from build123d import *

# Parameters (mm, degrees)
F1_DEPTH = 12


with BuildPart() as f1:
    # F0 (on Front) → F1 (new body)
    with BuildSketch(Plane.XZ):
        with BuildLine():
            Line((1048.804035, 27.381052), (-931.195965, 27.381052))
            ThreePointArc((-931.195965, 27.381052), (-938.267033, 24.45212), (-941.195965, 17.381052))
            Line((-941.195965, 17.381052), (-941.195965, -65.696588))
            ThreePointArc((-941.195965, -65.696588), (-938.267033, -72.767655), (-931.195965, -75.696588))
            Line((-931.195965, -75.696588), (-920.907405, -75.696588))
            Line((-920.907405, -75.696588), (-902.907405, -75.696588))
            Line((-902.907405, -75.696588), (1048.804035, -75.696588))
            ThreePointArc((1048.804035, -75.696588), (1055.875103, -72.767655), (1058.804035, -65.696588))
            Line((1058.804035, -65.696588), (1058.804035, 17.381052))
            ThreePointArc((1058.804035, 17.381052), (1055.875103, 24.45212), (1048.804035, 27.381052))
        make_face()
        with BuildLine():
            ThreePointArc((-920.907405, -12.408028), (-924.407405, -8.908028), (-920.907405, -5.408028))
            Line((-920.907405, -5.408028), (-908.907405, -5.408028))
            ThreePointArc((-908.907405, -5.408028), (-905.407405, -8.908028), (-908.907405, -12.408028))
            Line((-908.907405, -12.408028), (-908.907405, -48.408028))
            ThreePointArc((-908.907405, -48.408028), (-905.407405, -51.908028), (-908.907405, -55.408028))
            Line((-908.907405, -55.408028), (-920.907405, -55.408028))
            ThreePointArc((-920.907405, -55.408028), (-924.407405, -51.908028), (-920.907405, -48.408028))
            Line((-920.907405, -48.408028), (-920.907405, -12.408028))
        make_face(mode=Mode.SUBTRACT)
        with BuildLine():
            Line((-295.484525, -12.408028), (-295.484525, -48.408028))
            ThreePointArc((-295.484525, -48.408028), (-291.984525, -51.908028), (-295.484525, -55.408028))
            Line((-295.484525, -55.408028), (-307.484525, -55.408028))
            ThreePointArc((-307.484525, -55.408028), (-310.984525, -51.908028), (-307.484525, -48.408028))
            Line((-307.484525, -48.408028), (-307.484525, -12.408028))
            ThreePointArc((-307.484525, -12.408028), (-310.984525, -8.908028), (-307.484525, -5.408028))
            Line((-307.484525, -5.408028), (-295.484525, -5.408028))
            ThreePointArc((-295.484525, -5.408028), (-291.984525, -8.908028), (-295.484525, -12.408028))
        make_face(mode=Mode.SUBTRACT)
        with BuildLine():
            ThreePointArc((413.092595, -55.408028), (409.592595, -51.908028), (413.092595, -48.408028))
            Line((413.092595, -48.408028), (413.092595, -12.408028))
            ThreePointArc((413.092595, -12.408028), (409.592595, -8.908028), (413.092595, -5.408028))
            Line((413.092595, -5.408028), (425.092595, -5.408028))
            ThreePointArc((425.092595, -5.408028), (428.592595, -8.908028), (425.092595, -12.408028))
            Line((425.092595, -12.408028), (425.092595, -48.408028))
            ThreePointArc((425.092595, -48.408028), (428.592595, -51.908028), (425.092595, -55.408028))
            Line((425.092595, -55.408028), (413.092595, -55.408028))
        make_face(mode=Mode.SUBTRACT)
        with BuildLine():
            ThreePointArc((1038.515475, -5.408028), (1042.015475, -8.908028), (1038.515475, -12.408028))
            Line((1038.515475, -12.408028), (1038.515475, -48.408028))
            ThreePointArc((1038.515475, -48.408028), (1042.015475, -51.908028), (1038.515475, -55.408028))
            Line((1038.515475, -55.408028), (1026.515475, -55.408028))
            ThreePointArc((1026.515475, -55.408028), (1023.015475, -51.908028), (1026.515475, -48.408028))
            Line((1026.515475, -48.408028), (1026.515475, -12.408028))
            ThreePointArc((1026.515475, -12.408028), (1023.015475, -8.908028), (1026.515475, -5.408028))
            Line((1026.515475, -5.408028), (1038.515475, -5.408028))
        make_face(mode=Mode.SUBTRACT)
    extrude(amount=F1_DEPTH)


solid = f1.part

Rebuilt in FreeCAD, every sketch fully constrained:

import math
import FreeCAD as App
import Part
import Sketcher

V = App.Vector
Q = App.Units.Quantity

doc = App.newDocument("Part")
body = doc.addObject("PartDesign::Body", "Body")

# Sketch on XZ plane
sketch1 = doc.addObject("Sketcher::SketchObject", "Sketch")
body.addObject(sketch1)
sketch1.AttachmentSupport = (doc.XZ_Plane, [""])
sketch1.MapMode = "FlatFace"
sketch1.addGeometry(Part.LineSegment(V(1048.8, 27.4, 0), V(-931.2, 27.4, 0)), False)
sketch1.addGeometry(Part.ArcOfCircle(Part.Circle(V(-931.2, 17.4, 0), V(0, 0, 1), 10), math.radians(90), math.radians(180)), False)
sketch1.addGeometry(Part.LineSegment(V(-941.2, 17.4, 0), V(-941.2, -65.7, 0)), False)
sketch1.addGeometry(Part.ArcOfCircle(Part.Circle(V(-931.2, -65.7, 0), V(0, 0, 1), 10), math.radians(-180), math.radians(-90)), False)
sketch1.addGeometry(Part.LineSegment(V(-931.2, -75.7, 0), V(1048.8, -75.7, 0)), False)
sketch1.addGeometry(Part.ArcOfCircle(Part.Circle(V(1048.8, -65.7, 0), V(0, 0, 1), 10), math.radians(-90), math.radians(0)), False)
sketch1.addGeometry(Part.LineSegment(V(1058.8, -65.7, 0), V(1058.8, 17.4, 0)), False)
sketch1.addGeometry(Part.ArcOfCircle(Part.Circle(V(1048.8, 17.4, 0), V(0, 0, 1), 10), math.radians(0), math.radians(90)), False)
sketch1.addGeometry(Part.LineSegment(V(-920.9, -48.4, 0), V(-920.9, -12.4, 0)), False)
sketch1.addGeometry(Part.ArcOfCircle(Part.Circle(V(-920.9, -8.9, 0), V(0, 0, 1), 3.5), math.radians(90), math.radians(270)), False)
sketch1.addGeometry(Part.LineSegment(V(-920.9, -5.4, 0), V(-908.9, -5.4, 0)), False)
sketch1.addGeometry(Part.ArcOfCircle(Part.Circle(V(-908.9, -8.9, 0), V(0, 0, 1), 3.5), math.radians(-90), math.radians(90)), False)
sketch1.addGeometry(Part.LineSegment(V(-908.9, -12.4, 0), V(-908.9, -48.4, 0)), False)
sketch1.addGeometry(Part.ArcOfCircle(Part.Circle(V(-908.9, -51.9, 0), V(0, 0, 1), 3.5), math.radians(-90), math.radians(90)), False)
sketch1.addGeometry(Part.LineSegment(V(-908.9, -55.4, 0), V(-920.9, -55.4, 0)), False)
sketch1.addGeometry(Part.ArcOfCircle(Part.Circle(V(-920.9, -51.9, 0), V(0, 0, 1), 3.5), math.radians(90), math.radians(270)), False)
sketch1.addGeometry(Part.ArcOfCircle(Part.Circle(V(-295.5, -8.9, 0), V(0, 0, 1), 3.5), math.radians(-90), math.radians(90)), False)
sketch1.addGeometry(Part.LineSegment(V(-295.5, -12.4, 0), V(-295.5, -48.4, 0)), False)
sketch1.addGeometry(Part.ArcOfCircle(Part.Circle(V(-295.5, -51.9, 0), V(0, 0, 1), 3.5), math.radians(-90), math.radians(90)), False)
sketch1.addGeometry(Part.LineSegment(V(-295.5, -55.4, 0), V(-307.5, -55.4, 0)), False)
sketch1.addGeometry(Part.ArcOfCircle(Part.Circle(V(-307.5, -51.9, 0), V(0, 0, 1), 3.5), math.radians(90), math.radians(270)), False)
sketch1.addGeometry(Part.LineSegment(V(-307.5, -48.4, 0), V(-307.5, -12.4, 0)), False)
sketch1.addGeometry(Part.ArcOfCircle(Part.Circle(V(-307.5, -8.9, 0), V(0, 0, 1), 3.5), math.radians(90), math.radians(270)), False)
sketch1.addGeometry(Part.LineSegment(V(-307.5, -5.4, 0), V(-295.5, -5.4, 0)), False)
sketch1.addGeometry(Part.LineSegment(V(425.1, -55.4, 0), V(413.1, -55.4, 0)), False)
sketch1.addGeometry(Part.ArcOfCircle(Part.Circle(V(413.1, -51.9, 0), V(0, 0, 1), 3.5), math.radians(90), math.radians(270)), False)
sketch1.addGeometry(Part.LineSegment(V(413.1, -48.4, 0), V(413.1, -12.4, 0)), False)
sketch1.addGeometry(Part.ArcOfCircle(Part.Circle(V(413.1, -8.9, 0), V(0, 0, 1), 3.5), math.radians(90), math.radians(270)), False)
sketch1.addGeometry(Part.LineSegment(V(413.1, -5.4, 0), V(425.1, -5.4, 0)), False)
sketch1.addGeometry(Part.ArcOfCircle(Part.Circle(V(425.1, -8.9, 0), V(0, 0, 1), 3.5), math.radians(-90), math.radians(90)), False)
sketch1.addGeometry(Part.LineSegment(V(425.1, -12.4, 0), V(425.1, -48.4, 0)), False)
sketch1.addGeometry(Part.ArcOfCircle(Part.Circle(V(425.1, -51.9, 0), V(0, 0, 1), 3.5), math.radians(-90), math.radians(90)), False)
sketch1.addGeometry(Part.LineSegment(V(1026.5, -5.4, 0), V(1038.5, -5.4, 0)), False)
sketch1.addGeometry(Part.ArcOfCircle(Part.Circle(V(1038.5, -8.9, 0), V(0, 0, 1), 3.5), math.radians(-90), math.radians(90)), False)
sketch1.addGeometry(Part.LineSegment(V(1038.5, -12.4, 0), V(1038.5, -48.4, 0)), False)
sketch1.addGeometry(Part.ArcOfCircle(Part.Circle(V(1038.5, -51.9, 0), V(0, 0, 1), 3.5), math.radians(-90), math.radians(90)), False)
sketch1.addGeometry(Part.LineSegment(V(1038.5, -55.4, 0), V(1026.5, -55.4, 0)), False)
sketch1.addGeometry(Part.ArcOfCircle(Part.Circle(V(1026.5, -51.9, 0), V(0, 0, 1), 3.5), math.radians(90), math.radians(270)), False)
sketch1.addGeometry(Part.LineSegment(V(1026.5, -48.4, 0), V(1026.5, -12.4, 0)), False)
sketch1.addGeometry(Part.ArcOfCircle(Part.Circle(V(1026.5, -8.9, 0), V(0, 0, 1), 3.5), math.radians(90), math.radians(270)), False)
sketch1.addConstraint(Sketcher.Constraint("Tangent", 0, 2, 1, 1))
sketch1.addConstraint(Sketcher.Constraint("Tangent", 1, 2, 2, 1))
sketch1.addConstraint(Sketcher.Constraint("Tangent", 2, 2, 3, 1))
sketch1.addConstraint(Sketcher.Constraint("Tangent", 3, 2, 4, 1))
sketch1.addConstraint(Sketcher.Constraint("Tangent", 4, 2, 5, 1))
sketch1.addConstraint(Sketcher.Constraint("Tangent", 5, 2, 6, 1))
sketch1.addConstraint(Sketcher.Constraint("Tangent", 6, 2, 7, 1))
sketch1.addConstraint(Sketcher.Constraint("Tangent", 7, 2, 0, 1))
sketch1.addConstraint(Sketcher.Constraint("Coincident", 8, 2, 9, 2))
sketch1.addConstraint(Sketcher.Constraint("Tangent", 9, 1, 10, 1))
sketch1.addConstraint(Sketcher.Constraint("Tangent", 10, 2, 11, 2))
sketch1.addConstraint(Sketcher.Constraint("Coincident", 11, 1, 12, 1))
sketch1.addConstraint(Sketcher.Constraint("Coincident", 12, 2, 13, 2))
sketch1.addConstraint(Sketcher.Constraint("Tangent", 13, 1, 14, 1))
sketch1.addConstraint(Sketcher.Constraint("Tangent", 14, 2, 15, 2))
sketch1.addConstraint(Sketcher.Constraint("Coincident", 15, 1, 8, 1))
sketch1.addConstraint(Sketcher.Constraint("Coincident", 16, 1, 17, 1))
sketch1.addConstraint(Sketcher.Constraint("Coincident", 17, 2, 18, 2))
sketch1.addConstraint(Sketcher.Constraint("Tangent", 18, 1, 19, 1))
sketch1.addConstraint(Sketcher.Constraint("Tangent", 19, 2, 20, 2))
sketch1.addConstraint(Sketcher.Constraint("Coincident", 20, 1, 21, 1))
sketch1.addConstraint(Sketcher.Constraint("Coincident", 21, 2, 22, 2))
sketch1.addConstraint(Sketcher.Constraint("Tangent", 22, 1, 23, 1))
sketch1.addConstraint(Sketcher.Constraint("Tangent", 23, 2, 16, 2))
sketch1.addConstraint(Sketcher.Constraint("Tangent", 24, 2, 25, 2))
sketch1.addConstraint(Sketcher.Constraint("Coincident", 25, 1, 26, 1))
sketch1.addConstraint(Sketcher.Constraint("Coincident", 26, 2, 27, 2))
sketch1.addConstraint(Sketcher.Constraint("Tangent", 27, 1, 28, 1))
sketch1.addConstraint(Sketcher.Constraint("Tangent", 28, 2, 29, 2))
sketch1.addConstraint(Sketcher.Constraint("Coincident", 29, 1, 30, 1))
sketch1.addConstraint(Sketcher.Constraint("Coincident", 30, 2, 31, 2))
sketch1.addConstraint(Sketcher.Constraint("Tangent", 31, 1, 24, 1))
sketch1.addConstraint(Sketcher.Constraint("Tangent", 32, 2, 33, 2))
sketch1.addConstraint(Sketcher.Constraint("Coincident", 33, 1, 34, 1))
sketch1.addConstraint(Sketcher.Constraint("Coincident", 34, 2, 35, 2))
sketch1.addConstraint(Sketcher.Constraint("Tangent", 35, 1, 36, 1))
sketch1.addConstraint(Sketcher.Constraint("Tangent", 36, 2, 37, 2))
sketch1.addConstraint(Sketcher.Constraint("Coincident", 37, 1, 38, 1))
sketch1.addConstraint(Sketcher.Constraint("Coincident", 38, 2, 39, 2))
sketch1.addConstraint(Sketcher.Constraint("Tangent", 39, 1, 32, 1))
sketch1.addConstraint(Sketcher.Constraint("Horizontal", 0))
sketch1.addConstraint(Sketcher.Constraint("Vertical", 2))
sketch1.addConstraint(Sketcher.Constraint("Horizontal", 4))
sketch1.addConstraint(Sketcher.Constraint("Vertical", 6))
sketch1.addConstraint(Sketcher.Constraint("Vertical", 8))
sketch1.addConstraint(Sketcher.Constraint("Horizontal", 10))
sketch1.addConstraint(Sketcher.Constraint("Vertical", 12))
sketch1.addConstraint(Sketcher.Constraint("Horizontal", 14))
sketch1.addConstraint(Sketcher.Constraint("Vertical", 17))
sketch1.addConstraint(Sketcher.Constraint("Horizontal", 19))
sketch1.addConstraint(Sketcher.Constraint("Vertical", 21))
sketch1.addConstraint(Sketcher.Constraint("Horizontal", 23))
sketch1.addConstraint(Sketcher.Constraint("Horizontal", 24))
sketch1.addConstraint(Sketcher.Constraint("Vertical", 26))
sketch1.addConstraint(Sketcher.Constraint("Horizontal", 28))
sketch1.addConstraint(Sketcher.Constraint("Vertical", 30))
sketch1.addConstraint(Sketcher.Constraint("Horizontal", 32))
sketch1.addConstraint(Sketcher.Constraint("Vertical", 34))
sketch1.addConstraint(Sketcher.Constraint("Horizontal", 36))
sketch1.addConstraint(Sketcher.Constraint("Vertical", 38))
sketch1.addConstraint(Sketcher.Constraint("Equal", 1, 3))
sketch1.addConstraint(Sketcher.Constraint("Equal", 3, 5))
sketch1.addConstraint(Sketcher.Constraint("Equal", 5, 7))
sketch1.addConstraint(Sketcher.Constraint("Equal", 9, 11))
sketch1.addConstraint(Sketcher.Constraint("Equal", 11, 13))
sketch1.addConstraint(Sketcher.Constraint("Equal", 13, 15))
sketch1.addConstraint(Sketcher.Constraint("Equal", 15, 16))
sketch1.addConstraint(Sketcher.Constraint("Equal", 16, 18))
sketch1.addConstraint(Sketcher.Constraint("Equal", 18, 20))
sketch1.addConstraint(Sketcher.Constraint("Equal", 20, 22))
sketch1.addConstraint(Sketcher.Constraint("Equal", 22, 25))
sketch1.addConstraint(Sketcher.Constraint("Equal", 25, 27))
sketch1.addConstraint(Sketcher.Constraint("Equal", 27, 29))
sketch1.addConstraint(Sketcher.Constraint("Equal", 29, 31))
sketch1.addConstraint(Sketcher.Constraint("Equal", 31, 33))
sketch1.addConstraint(Sketcher.Constraint("Equal", 33, 35))
sketch1.addConstraint(Sketcher.Constraint("Equal", 35, 37))
sketch1.addConstraint(Sketcher.Constraint("Equal", 37, 39))
sketch1.addConstraint(Sketcher.Constraint("Horizontal", 11, 3, 16, 3))
sketch1.addConstraint(Sketcher.Constraint("Horizontal", 15, 3, 18, 3))
sketch1.addConstraint(Sketcher.Constraint("Horizontal", 20, 3, 25, 3))
sketch1.addConstraint(Sketcher.Constraint("Horizontal", 22, 3, 27, 3))
sketch1.addConstraint(Sketcher.Constraint("Horizontal", 29, 3, 33, 3))
sketch1.addConstraint(Sketcher.Constraint("Horizontal", 31, 3, 35, 3))
sketch1.addConstraint(Sketcher.Constraint("Vertical", 11, 3, 13, 3))
sketch1.addConstraint(Sketcher.Constraint("Vertical", 9, 3, 15, 3))
sketch1.addConstraint(Sketcher.Constraint("Vertical", 16, 3, 18, 3))
sketch1.addConstraint(Sketcher.Constraint("Vertical", 20, 3, 22, 3))
sketch1.addConstraint(Sketcher.Constraint("Vertical", 25, 3, 27, 3))
sketch1.addConstraint(Sketcher.Constraint("Vertical", 29, 3, 31, 3))
sketch1.addConstraint(Sketcher.Constraint("Vertical", 33, 3, 35, 3))
sketch1.addConstraint(Sketcher.Constraint("Vertical", 37, 3, 39, 3))
sketch1.addConstraint(Sketcher.Constraint("Vertical", 15, 3, 8, 2))
sketch1.addConstraint(Sketcher.Constraint("Vertical", 10, 2, 11, 1))
sketch1.addConstraint(Sketcher.Constraint("Vertical", 18, 3, 16, 1))
sketch1.addConstraint(Sketcher.Constraint("Vertical", 19, 2, 20, 1))
sketch1.addConstraint(Sketcher.Constraint("Vertical", 24, 2, 25, 1))
sketch1.addConstraint(Sketcher.Constraint("Vertical", 28, 2, 29, 1))
sketch1.addConstraint(Sketcher.Constraint("Vertical", 32, 2, 33, 1))
sketch1.addConstraint(Sketcher.Constraint("Vertical", 36, 2, 37, 1))
sketch1.addConstraint(Sketcher.Constraint("Equal", 14, 19))
sketch1.addConstraint(Sketcher.Constraint("Equal", 23, 24))
sketch1.addConstraint(Sketcher.Constraint("Equal", 28, 32))
sketch1.addConstraint(Sketcher.Constraint("Radius", 1, Q("9.999999 mm")))
sketch1.addConstraint(Sketcher.Constraint("Radius", 9, Q("3.5 mm")))
sketch1.addConstraint(Sketcher.Constraint("DistanceX", 0, 2, 0, 1, Q("1980 mm")))
sketch1.addConstraint(Sketcher.Constraint("DistanceX", 10, 1, 10, 2, Q("12 mm")))
sketch1.addConstraint(Sketcher.Constraint("DistanceY", 8, 1, 8, 2, Q("36 mm")))
sketch1.addConstraint(Sketcher.Constraint("DistanceY", 2, 2, 2, 1, Q("83.07764 mm")))
sketch1.addConstraint(Sketcher.Constraint("DistanceY", 13, 3, -1, 1, Q("51.908028 mm")))
sketch1.addConstraint(Sketcher.Constraint("DistanceY", 2, 2, -1, 1, Q("65.696588 mm")))
sketch1.addConstraint(Sketcher.Constraint("DistanceX", 1, 3, 9, 3, Q("10.288561 mm")))
sketch1.addConstraint(Sketcher.Constraint("DistanceX", 11, 3, 16, 3, Q("613.42288 mm")))
sketch1.addConstraint(Sketcher.Constraint("DistanceX", 25, 3, 5, 3, Q("635.711439 mm")))
sketch1.addConstraint(Sketcher.Constraint("DistanceX", 33, 3, 7, 3, Q("10.288561 mm")))
sketch1.addConstraint(Sketcher.Constraint("DistanceX", 1, 3, -1, 1, Q("931.195966 mm")))
pad1 = doc.addObject("PartDesign::Pad", "Pad")
body.addObject(pad1)
pad1.Profile = sketch1
pad1.Length = 12

doc.recompute()
